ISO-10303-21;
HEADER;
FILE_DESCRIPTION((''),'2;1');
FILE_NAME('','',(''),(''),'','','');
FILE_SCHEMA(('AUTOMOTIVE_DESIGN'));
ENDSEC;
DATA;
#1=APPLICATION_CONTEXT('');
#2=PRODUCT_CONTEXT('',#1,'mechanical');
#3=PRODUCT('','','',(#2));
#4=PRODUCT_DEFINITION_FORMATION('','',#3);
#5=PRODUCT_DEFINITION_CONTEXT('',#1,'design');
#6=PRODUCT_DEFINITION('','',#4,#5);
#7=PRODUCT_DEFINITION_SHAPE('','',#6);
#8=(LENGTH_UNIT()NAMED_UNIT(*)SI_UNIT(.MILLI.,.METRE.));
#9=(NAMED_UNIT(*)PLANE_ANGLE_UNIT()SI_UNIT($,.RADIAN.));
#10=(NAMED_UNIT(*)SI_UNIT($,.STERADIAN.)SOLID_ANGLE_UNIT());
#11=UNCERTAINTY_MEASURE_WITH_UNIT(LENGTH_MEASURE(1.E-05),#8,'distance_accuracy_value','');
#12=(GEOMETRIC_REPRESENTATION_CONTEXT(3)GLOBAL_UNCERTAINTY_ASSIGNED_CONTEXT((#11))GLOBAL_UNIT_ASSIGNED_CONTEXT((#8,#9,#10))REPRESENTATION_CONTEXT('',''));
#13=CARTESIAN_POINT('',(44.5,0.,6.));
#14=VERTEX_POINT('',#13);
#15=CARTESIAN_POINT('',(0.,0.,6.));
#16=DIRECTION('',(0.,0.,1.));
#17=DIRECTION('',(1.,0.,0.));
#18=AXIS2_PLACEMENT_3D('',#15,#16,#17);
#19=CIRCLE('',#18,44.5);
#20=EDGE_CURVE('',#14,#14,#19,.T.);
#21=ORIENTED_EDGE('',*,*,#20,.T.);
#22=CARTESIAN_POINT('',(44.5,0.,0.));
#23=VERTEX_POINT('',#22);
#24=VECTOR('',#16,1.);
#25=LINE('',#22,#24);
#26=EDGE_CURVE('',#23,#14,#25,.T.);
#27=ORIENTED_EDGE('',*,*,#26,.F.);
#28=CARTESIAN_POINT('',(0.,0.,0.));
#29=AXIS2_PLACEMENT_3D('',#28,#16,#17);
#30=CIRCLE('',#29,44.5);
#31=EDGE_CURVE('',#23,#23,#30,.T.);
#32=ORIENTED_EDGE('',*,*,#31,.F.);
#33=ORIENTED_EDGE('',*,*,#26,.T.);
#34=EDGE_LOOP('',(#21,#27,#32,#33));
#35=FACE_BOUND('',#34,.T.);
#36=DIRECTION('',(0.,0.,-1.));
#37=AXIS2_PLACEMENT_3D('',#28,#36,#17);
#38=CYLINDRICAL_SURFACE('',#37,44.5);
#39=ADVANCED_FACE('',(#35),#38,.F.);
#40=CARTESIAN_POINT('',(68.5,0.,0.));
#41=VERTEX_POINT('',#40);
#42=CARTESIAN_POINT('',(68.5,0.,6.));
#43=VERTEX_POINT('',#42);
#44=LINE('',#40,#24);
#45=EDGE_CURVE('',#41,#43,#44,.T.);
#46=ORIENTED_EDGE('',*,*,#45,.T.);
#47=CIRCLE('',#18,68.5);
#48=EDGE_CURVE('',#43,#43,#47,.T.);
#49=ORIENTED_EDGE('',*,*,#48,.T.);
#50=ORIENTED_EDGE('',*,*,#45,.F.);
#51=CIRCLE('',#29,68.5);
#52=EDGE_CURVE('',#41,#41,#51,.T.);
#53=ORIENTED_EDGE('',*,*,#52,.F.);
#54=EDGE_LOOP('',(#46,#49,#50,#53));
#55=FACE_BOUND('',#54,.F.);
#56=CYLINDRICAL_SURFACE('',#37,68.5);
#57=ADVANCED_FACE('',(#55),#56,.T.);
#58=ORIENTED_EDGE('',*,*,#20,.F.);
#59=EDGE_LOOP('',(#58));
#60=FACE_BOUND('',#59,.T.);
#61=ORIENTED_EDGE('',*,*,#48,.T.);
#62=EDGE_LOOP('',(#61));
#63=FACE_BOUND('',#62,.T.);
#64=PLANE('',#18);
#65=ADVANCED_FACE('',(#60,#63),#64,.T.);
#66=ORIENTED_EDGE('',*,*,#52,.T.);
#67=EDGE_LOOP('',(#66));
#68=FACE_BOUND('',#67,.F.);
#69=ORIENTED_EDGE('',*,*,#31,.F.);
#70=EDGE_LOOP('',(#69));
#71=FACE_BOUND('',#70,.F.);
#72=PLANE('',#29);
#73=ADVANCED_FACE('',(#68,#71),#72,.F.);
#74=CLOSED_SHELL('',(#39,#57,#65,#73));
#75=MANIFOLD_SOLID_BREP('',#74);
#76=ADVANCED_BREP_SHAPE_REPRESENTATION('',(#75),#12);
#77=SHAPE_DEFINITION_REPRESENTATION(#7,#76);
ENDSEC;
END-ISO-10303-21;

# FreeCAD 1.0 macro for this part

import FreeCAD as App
import Part
import Sketcher

doc = App.newDocument("Part")
params = doc.addObject("Spreadsheet::Sheet", "Params")
for row, (alias, value) in enumerate([
    ("sketch1_diameter", "89 mm"),
    ("sketch1_diameter2", "137 mm"),
    ("pad1_length", "6 mm"),
], start=1):
    params.set(f"A{row}", alias)
    params.set(f"B{row}", "=" + value)
    params.setAlias(f"B{row}", alias)

body = doc.addObject("PartDesign::Body", "Body")

sketch1 = body.newObject("Sketcher::SketchObject", "Sketch")
sketch1.AttachmentSupport = (doc.getObject("XY_Plane"), [""])
sketch1.MapMode = "FlatFace"
sketch1.addGeometry(Part.Circle(App.Vector(0, 0, 0), App.Vector(0, 0, 1), 68.5), False)
sketch1.addGeometry(Part.Circle(App.Vector(0, 0, 0), App.Vector(0, 0, 1), 44.5), False)
sketch1.addConstraint(Sketcher.Constraint("Coincident", 0, 3, -1, 1))
sketch1.addConstraint(Sketcher.Constraint("Coincident", 1, 3, -1, 1))
sketch1.addConstraint(Sketcher.Constraint("Diameter", 1, 89.0))
sketch1.addConstraint(Sketcher.Constraint("Diameter", 0, 137.0))
sketch1.setExpression("Constraints[2]", "Params.sketch1_diameter")
sketch1.setExpression("Constraints[3]", "Params.sketch1_diameter2")
pad1 = body.newObject("PartDesign::Pad", "Pad")
pad1.Profile = sketch1
pad1.setExpression("Length", "Params.pad1_length")

doc.recompute()
